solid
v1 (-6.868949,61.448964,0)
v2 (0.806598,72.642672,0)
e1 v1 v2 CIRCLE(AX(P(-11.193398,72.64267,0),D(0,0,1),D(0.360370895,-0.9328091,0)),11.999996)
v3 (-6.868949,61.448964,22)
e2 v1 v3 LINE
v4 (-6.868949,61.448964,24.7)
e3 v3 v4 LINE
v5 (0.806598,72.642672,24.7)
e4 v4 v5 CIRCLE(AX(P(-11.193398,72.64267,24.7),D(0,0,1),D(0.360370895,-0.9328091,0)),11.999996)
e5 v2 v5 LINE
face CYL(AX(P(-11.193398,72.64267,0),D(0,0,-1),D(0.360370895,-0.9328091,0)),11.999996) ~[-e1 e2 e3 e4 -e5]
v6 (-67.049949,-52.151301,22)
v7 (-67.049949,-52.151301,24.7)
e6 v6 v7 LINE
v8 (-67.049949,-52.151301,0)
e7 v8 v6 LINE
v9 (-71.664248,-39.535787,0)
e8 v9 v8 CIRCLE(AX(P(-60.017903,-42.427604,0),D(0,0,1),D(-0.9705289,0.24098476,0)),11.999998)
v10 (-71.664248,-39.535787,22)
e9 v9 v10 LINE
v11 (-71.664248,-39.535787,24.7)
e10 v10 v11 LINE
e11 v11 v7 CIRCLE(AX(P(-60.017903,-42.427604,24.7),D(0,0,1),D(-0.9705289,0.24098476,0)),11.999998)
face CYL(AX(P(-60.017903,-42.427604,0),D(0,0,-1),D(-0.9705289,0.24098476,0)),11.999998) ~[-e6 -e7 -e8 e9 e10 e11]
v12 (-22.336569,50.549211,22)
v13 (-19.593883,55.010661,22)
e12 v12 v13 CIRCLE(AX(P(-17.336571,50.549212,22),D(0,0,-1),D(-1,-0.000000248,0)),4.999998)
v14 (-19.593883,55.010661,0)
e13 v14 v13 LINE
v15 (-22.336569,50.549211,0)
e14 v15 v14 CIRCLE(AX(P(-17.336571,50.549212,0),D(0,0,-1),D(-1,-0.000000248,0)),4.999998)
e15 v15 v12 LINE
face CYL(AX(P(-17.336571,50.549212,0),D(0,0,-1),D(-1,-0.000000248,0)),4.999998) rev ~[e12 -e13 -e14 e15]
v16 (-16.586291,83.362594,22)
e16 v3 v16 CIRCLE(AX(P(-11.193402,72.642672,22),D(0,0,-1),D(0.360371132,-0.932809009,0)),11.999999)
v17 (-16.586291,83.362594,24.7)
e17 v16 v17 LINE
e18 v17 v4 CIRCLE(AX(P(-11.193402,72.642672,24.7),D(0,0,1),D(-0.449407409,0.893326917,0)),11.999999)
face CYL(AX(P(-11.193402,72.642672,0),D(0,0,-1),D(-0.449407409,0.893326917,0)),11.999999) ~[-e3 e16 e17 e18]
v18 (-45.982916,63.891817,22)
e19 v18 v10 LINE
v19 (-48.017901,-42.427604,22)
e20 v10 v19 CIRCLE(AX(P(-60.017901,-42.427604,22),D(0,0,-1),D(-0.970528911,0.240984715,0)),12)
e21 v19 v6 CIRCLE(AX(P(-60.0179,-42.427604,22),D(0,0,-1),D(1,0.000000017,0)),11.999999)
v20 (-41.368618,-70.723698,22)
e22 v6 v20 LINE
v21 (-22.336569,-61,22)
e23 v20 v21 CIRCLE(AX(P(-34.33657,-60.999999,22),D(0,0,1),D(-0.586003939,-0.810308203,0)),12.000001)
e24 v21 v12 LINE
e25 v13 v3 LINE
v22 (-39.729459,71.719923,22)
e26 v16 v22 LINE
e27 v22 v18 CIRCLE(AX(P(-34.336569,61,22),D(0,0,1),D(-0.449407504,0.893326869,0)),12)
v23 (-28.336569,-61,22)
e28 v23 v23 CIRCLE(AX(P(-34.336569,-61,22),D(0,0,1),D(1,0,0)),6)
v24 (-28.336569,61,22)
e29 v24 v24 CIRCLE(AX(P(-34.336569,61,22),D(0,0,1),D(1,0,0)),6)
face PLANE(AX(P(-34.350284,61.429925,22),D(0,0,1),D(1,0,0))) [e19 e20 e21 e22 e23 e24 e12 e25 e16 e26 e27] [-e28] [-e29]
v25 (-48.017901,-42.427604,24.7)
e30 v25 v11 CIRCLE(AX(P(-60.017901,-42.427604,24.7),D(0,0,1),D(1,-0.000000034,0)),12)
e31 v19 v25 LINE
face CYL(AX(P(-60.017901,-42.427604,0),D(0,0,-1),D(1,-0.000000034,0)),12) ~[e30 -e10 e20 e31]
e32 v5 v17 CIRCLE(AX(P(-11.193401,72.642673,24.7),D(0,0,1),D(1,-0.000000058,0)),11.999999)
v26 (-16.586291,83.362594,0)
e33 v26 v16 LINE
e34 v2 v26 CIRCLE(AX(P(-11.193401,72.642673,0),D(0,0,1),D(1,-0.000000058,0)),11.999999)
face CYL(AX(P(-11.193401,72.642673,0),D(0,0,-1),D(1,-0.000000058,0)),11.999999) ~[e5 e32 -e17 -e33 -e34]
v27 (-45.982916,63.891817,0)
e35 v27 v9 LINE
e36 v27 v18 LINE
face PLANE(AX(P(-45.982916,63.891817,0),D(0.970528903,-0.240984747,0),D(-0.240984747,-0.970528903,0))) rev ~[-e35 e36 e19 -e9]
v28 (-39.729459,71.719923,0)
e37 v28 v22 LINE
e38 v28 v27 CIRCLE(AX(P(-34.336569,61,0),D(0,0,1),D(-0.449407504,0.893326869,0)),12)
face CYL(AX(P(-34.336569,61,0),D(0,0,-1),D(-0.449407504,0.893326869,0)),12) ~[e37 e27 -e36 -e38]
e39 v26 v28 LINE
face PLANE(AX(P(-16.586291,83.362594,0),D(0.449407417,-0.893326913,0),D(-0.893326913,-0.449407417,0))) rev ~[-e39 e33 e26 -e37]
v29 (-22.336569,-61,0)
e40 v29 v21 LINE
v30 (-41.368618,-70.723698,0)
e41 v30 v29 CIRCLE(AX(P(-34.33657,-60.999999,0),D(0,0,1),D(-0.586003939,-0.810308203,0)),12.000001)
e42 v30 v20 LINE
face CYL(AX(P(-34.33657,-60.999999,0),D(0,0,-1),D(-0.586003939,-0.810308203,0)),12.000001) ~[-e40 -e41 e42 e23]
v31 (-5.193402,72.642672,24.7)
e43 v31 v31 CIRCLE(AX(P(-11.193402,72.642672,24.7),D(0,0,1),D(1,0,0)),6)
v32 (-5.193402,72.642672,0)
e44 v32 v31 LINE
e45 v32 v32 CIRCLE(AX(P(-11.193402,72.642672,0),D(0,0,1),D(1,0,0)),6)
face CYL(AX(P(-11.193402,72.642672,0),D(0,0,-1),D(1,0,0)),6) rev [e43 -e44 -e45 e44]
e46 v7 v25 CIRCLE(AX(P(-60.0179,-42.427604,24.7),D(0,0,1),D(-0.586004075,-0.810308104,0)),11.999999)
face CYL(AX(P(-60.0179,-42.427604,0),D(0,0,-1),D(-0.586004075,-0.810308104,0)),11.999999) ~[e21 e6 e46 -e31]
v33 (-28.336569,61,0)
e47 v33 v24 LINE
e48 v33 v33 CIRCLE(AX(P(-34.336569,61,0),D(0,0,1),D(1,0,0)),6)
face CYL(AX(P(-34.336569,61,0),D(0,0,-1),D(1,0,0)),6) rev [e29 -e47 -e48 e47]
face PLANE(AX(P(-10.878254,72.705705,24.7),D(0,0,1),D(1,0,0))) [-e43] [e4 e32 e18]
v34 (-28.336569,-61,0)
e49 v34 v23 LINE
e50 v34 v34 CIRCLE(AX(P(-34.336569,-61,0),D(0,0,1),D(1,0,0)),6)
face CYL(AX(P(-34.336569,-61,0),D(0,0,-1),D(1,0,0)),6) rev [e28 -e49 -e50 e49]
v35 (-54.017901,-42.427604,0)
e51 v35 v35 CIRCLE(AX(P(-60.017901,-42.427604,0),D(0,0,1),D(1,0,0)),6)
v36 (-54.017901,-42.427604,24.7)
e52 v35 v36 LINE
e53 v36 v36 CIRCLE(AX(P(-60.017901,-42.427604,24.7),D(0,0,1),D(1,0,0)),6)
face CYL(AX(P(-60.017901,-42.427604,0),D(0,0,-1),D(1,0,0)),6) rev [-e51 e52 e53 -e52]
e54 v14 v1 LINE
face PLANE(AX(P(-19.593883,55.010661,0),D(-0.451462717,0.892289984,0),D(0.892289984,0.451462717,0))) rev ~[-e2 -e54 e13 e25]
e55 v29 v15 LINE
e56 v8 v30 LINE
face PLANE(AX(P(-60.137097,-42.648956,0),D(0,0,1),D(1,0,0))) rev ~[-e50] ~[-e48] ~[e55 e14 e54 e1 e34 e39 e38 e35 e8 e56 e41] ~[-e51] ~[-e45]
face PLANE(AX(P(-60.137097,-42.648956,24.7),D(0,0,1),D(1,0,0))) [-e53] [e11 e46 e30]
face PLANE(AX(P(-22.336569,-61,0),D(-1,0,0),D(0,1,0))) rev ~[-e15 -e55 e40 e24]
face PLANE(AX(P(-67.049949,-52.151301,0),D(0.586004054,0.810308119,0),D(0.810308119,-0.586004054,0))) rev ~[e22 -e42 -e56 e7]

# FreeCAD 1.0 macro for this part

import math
import FreeCAD as App
import Part
import Sketcher
from FreeCAD import Vector

doc = App.newDocument("Part")
params = doc.addObject("Spreadsheet::Sheet", "Params")
for row, (alias, value) in enumerate([
    ("sketch1_diameter", "12 mm"),
    ("sketch1_diameter2", "12 mm"),
    ("sketch1_radius", "12 mm"),
    ("sketch1_radius2", "12 mm"),
    ("sketch1_radius3", "12.000001 mm"),
    ("pad1_length", "22 mm"),
    ("sketch2_diameter", "12 mm"),
    ("sketch2_radius", "11.999998 mm"),
    ("pad2_length", "24.7 mm"),
], start=1):
    params.set(f"A{row}", alias)
    params.set(f"B{row}", "=" + value)
    params.setAlias(f"B{row}", alias)

body = doc.addObject("PartDesign::Body", "Body")

# Sketch on XY plane
sketch1 = doc.addObject("Sketcher::SketchObject", "Sketch")
body.addObject(sketch1)
sketch1.AttachmentSupport = (doc.XY_Plane, [""])
sketch1.MapMode = "FlatFace"
sketch1.addGeometry([
    Part.ArcOfCircle(Part.Circle(Vector(-34.336569, 61, 0), Vector(0, 0, 1), 12), math.radians(116.705676), math.radians(166.055334)),  # 0
    Part.LineSegment(Vector(-45.982916, 63.891817, 0), Vector(-71.664248, -39.535787, 0)),  # 1
    Part.ArcOfCircle(Part.Circle(Vector(-60.017901, -42.427604, 0), Vector(0, 0, 1), 12), math.radians(-0.000002), math.radians(166.055334)),  # 2
    Part.ArcOfCircle(Part.Circle(Vector(-60.0179, -42.427604, 0), Vector(0, 0, 1), 11.999999), math.radians(-125.873955), math.radians(0.000001)),  # 3
    Part.LineSegment(Vector(-67.049949, -52.151301, 0), Vector(-41.368618, -70.723698, 0)),  # 4
    Part.ArcOfCircle(Part.Circle(Vector(-34.33657, -60.999999, 0), Vector(0, 0, 1), 12.000001), math.radians(-125.873945), math.radians(-0.000006)),  # 5
    Part.LineSegment(Vector(-22.336569, -61, 0), Vector(-22.336569, 50.549211, 0)),  # 6
    Part.ArcOfCircle(Part.Circle(Vector(-17.336571, 50.549212, 0), Vector(0, 0, 1), 4.999998), math.radians(116.837564), math.radians(180.000014)),  # 7
    Part.LineSegment(Vector(-19.593883, 55.010661, 0), Vector(-6.868949, 61.448964, 0)),  # 8
    Part.ArcOfCircle(Part.Circle(Vector(-11.193402, 72.642672, 0), Vector(0, 0, 1), 11.999999), math.radians(116.70567), math.radians(291.12299)),  # 9
    Part.LineSegment(Vector(-16.586291, 83.362594, 0), Vector(-39.729459, 71.719923, 0)),  # 10
    Part.Circle(Vector(-34.336569, 61, 0), Vector(0, 0, 1), 6),  # 11
    Part.Circle(Vector(-34.336569, -61, 0), Vector(0, 0, 1), 6),  # 12
], False)
sketch1.addConstraint([
    Sketcher.Constraint("Coincident", 0, 2, 1, 1),
    Sketcher.Constraint("Coincident", 1, 2, 2, 2),
    Sketcher.Constraint("Coincident", 2, 1, 3, 2),
    Sketcher.Constraint("Coincident", 3, 1, 4, 1),
    Sketcher.Constraint("Coincident", 4, 2, 5, 1),
    Sketcher.Constraint("Coincident", 5, 2, 6, 1),
    Sketcher.Constraint("Coincident", 6, 2, 7, 2),
    Sketcher.Constraint("Coincident", 7, 1, 8, 1),
    Sketcher.Constraint("Coincident", 8, 2, 9, 2),
    Sketcher.Constraint("Coincident", 9, 1, 10, 1),
    Sketcher.Constraint("Coincident", 10, 2, 0, 1),
    Sketcher.Constraint("Vertical", 6),
    Sketcher.Constraint("Coincident", 3, 3, 2, 3),
    Sketcher.Constraint("Coincident", 11, 3, 0, 3),
    Sketcher.Constraint("Coincident", 12, 3, 5, 3),
    Sketcher.Constraint("Diameter", 11, 12.0),
    Sketcher.Constraint("Diameter", 12, 12.0),
    Sketcher.Constraint("Radius", 0, 12.0),
    Sketcher.Constraint("Radius", 2, 12.0),
    Sketcher.Constraint("Radius", 5, 12.000001),
    Sketcher.Constraint("Radius", 7, 4.999998),
    Sketcher.Constraint("Radius", 9, 11.999999),
    Sketcher.Constraint("DistanceY", -1, 1, 0, 3, 61.0),
    Sketcher.Constraint("DistanceY", 5, 3, -1, 1, 60.999999),
    Sketcher.Constraint("DistanceY", 5, 2, -1, 1, 61.0),
    Sketcher.Constraint("DistanceX", 0, 3, 7, 3, 16.999998),
    Sketcher.Constraint("DistanceY", 1, 2, 7, 3, 90.084999),
    Sketcher.Constraint("DistanceY", 6, 1, 6, 2, 111.549211),
    Sketcher.Constraint("DistanceX", 2, 3, -1, 1, 60.017901),
    Sketcher.Constraint("DistanceY", 3, 1, -1, 1, 52.151301),
    Sketcher.Constraint("DistanceY", 4, 2, -1, 1, 70.723698),
    Sketcher.Constraint("DistanceX", 2, 3, 9, 3, 48.824499),
    Sketcher.Constraint("DistanceX", 1, 2, 3, 1, 4.614299),
    Sketcher.Constraint("Distance", 1, 106.568288),
    Sketcher.Constraint("Distance", 4, 31.693291),
    Sketcher.Constraint("DistanceX", 0, 3, -1, 1, 34.336569),
    Sketcher.Constraint("DistanceY", -1, 1, 9, 3, 72.642672),
    Sketcher.Constraint("DistanceY", -1, 1, 7, 1, 55.010661),
    Sketcher.Constraint("DistanceX", 8, 2, -1, 1, 6.868949),
    Sketcher.Constraint("DistanceX", 9, 1, -1, 1, 16.586291),
    Sketcher.Constraint("DistanceX", 10, 2, -1, 1, 39.729459),
    Sketcher.Constraint("DistanceY", 2, 1, -1, 1, 42.427604),
])
sketch1.setExpression("Constraints[15]", "Params.sketch1_diameter")
sketch1.setExpression("Constraints[16]", "Params.sketch1_diameter2")
sketch1.setExpression("Constraints[17]", "Params.sketch1_radius")
sketch1.setExpression("Constraints[18]", "Params.sketch1_radius2")
sketch1.setExpression("Constraints[19]", "Params.sketch1_radius3")
pad1 = doc.addObject("PartDesign::Pad", "Pad")
body.addObject(pad1)
pad1.Profile = sketch1
pad1.setExpression("Length", "Params.pad1_length")

# Sketch on XY plane
sketch2 = doc.addObject("Sketcher::SketchObject", "Sketch001")
body.addObject(sketch2)
sketch2.AttachmentSupport = (doc.XY_Plane, [""])
sketch2.MapMode = "FlatFace"
sketch2.addGeometry([
    Part.ArcOfCircle(Part.Circle(Vector(-60.017903, -42.427604, 0), Vector(0, 0, 1), 11.999998), math.radians(166.055331), math.radians(234.126055)),  # 0
    Part.ArcOfCircle(Part.Circle(Vector(-60.0179, -42.427604, 0), Vector(0, 0, 1), 11.999999), math.radians(-125.873955), math.radians(0.000001)),  # 1
    Part.ArcOfCircle(Part.Circle(Vector(-60.017901, -42.427604, 0), Vector(0, 0, 1), 12), math.radians(-0.000002), math.radians(166.055334)),  # 2
    Part.Circle(Vector(-60.017901, -42.427604, 0), Vector(0, 0, 1), 6),  # 3
    Part.ArcOfCircle(Part.Circle(Vector(-11.193402, 72.642672, 0), Vector(0, 0, 1), 11.999999), math.radians(116.70567), math.radians(291.12299)),  # 4
    Part.ArcOfCircle(Part.Circle(Vector(-11.193398, 72.64267, 0), Vector(0, 0, 1), 11.999996), math.radians(-68.877024), math.radians(0.00001)),  # 5
    Part.ArcOfCircle(Part.Circle(Vector(-11.193401, 72.642673, 0), Vector(0, 0, 1), 11.999999), math.radians(-0.000003), math.radians(116.705679)),  # 6
    Part.Circle(Vector(-11.193402, 72.642672, 0), Vector(0, 0, 1), 6),  # 7
], False)
sketch2.addConstraint([
    Sketcher.Constraint("Tangent", 0, 2, 1, 1),
    Sketcher.Constraint("Tangent", 1, 2, 2, 1),
    Sketcher.Constraint("Tangent", 2, 2, 0, 1),
    Sketcher.Constraint("Tangent", 4, 2, 5, 1),
    Sketcher.Constraint("Tangent", 5, 2, 6, 1),
    Sketcher.Constraint("Tangent", 6, 2, 4, 1),
    Sketcher.Constraint("Coincident", 3, 3, 0, 3),
    Sketcher.Constraint("Coincident", 7, 3, 4, 3),
    Sketcher.Constraint("Equal", 2, 4),
    Sketcher.Constraint("Equal", 3, 7),
    Sketcher.Constraint("Horizontal", 3, 3, 1, 2),
    Sketcher.Constraint("Horizontal", 7, 3, 5, 2),
    Sketcher.Constraint("Diameter", 3, 12.0),
    Sketcher.Constraint("Radius", 0, 11.999998),
    Sketcher.Constraint("DistanceX", 1, 3, -1, 1, 60.0179),
    Sketcher.Constraint("DistanceX", 5, 3, -1, 1, 11.193398),
    Sketcher.Constraint("DistanceY", 0, 2, -1, 1, 52.151301),
    Sketcher.Constraint("DistanceX", 2, 2, 0, 2, 4.614299),
    Sketcher.Constraint("DistanceY", -1, 1, 4, 3, 72.642672),
    Sketcher.Constraint("DistanceX", 0, 2, -1, 1, 67.049949),
    Sketcher.Constraint("DistanceX", 4, 2, -1, 1, 6.868949),
    Sketcher.Constraint("DistanceX", 6, 2, -1, 1, 16.586291),
])
sketch2.setExpression("Constraints[12]", "Params.sketch2_diameter")
sketch2.setExpression("Constraints[13]", "Params.sketch2_radius")
pad2 = doc.addObject("PartDesign::Pad", "Pad001")
body.addObject(pad2)
pad2.Profile = sketch2
pad2.setExpression("Length", "Params.pad2_length")

doc.recompute()
